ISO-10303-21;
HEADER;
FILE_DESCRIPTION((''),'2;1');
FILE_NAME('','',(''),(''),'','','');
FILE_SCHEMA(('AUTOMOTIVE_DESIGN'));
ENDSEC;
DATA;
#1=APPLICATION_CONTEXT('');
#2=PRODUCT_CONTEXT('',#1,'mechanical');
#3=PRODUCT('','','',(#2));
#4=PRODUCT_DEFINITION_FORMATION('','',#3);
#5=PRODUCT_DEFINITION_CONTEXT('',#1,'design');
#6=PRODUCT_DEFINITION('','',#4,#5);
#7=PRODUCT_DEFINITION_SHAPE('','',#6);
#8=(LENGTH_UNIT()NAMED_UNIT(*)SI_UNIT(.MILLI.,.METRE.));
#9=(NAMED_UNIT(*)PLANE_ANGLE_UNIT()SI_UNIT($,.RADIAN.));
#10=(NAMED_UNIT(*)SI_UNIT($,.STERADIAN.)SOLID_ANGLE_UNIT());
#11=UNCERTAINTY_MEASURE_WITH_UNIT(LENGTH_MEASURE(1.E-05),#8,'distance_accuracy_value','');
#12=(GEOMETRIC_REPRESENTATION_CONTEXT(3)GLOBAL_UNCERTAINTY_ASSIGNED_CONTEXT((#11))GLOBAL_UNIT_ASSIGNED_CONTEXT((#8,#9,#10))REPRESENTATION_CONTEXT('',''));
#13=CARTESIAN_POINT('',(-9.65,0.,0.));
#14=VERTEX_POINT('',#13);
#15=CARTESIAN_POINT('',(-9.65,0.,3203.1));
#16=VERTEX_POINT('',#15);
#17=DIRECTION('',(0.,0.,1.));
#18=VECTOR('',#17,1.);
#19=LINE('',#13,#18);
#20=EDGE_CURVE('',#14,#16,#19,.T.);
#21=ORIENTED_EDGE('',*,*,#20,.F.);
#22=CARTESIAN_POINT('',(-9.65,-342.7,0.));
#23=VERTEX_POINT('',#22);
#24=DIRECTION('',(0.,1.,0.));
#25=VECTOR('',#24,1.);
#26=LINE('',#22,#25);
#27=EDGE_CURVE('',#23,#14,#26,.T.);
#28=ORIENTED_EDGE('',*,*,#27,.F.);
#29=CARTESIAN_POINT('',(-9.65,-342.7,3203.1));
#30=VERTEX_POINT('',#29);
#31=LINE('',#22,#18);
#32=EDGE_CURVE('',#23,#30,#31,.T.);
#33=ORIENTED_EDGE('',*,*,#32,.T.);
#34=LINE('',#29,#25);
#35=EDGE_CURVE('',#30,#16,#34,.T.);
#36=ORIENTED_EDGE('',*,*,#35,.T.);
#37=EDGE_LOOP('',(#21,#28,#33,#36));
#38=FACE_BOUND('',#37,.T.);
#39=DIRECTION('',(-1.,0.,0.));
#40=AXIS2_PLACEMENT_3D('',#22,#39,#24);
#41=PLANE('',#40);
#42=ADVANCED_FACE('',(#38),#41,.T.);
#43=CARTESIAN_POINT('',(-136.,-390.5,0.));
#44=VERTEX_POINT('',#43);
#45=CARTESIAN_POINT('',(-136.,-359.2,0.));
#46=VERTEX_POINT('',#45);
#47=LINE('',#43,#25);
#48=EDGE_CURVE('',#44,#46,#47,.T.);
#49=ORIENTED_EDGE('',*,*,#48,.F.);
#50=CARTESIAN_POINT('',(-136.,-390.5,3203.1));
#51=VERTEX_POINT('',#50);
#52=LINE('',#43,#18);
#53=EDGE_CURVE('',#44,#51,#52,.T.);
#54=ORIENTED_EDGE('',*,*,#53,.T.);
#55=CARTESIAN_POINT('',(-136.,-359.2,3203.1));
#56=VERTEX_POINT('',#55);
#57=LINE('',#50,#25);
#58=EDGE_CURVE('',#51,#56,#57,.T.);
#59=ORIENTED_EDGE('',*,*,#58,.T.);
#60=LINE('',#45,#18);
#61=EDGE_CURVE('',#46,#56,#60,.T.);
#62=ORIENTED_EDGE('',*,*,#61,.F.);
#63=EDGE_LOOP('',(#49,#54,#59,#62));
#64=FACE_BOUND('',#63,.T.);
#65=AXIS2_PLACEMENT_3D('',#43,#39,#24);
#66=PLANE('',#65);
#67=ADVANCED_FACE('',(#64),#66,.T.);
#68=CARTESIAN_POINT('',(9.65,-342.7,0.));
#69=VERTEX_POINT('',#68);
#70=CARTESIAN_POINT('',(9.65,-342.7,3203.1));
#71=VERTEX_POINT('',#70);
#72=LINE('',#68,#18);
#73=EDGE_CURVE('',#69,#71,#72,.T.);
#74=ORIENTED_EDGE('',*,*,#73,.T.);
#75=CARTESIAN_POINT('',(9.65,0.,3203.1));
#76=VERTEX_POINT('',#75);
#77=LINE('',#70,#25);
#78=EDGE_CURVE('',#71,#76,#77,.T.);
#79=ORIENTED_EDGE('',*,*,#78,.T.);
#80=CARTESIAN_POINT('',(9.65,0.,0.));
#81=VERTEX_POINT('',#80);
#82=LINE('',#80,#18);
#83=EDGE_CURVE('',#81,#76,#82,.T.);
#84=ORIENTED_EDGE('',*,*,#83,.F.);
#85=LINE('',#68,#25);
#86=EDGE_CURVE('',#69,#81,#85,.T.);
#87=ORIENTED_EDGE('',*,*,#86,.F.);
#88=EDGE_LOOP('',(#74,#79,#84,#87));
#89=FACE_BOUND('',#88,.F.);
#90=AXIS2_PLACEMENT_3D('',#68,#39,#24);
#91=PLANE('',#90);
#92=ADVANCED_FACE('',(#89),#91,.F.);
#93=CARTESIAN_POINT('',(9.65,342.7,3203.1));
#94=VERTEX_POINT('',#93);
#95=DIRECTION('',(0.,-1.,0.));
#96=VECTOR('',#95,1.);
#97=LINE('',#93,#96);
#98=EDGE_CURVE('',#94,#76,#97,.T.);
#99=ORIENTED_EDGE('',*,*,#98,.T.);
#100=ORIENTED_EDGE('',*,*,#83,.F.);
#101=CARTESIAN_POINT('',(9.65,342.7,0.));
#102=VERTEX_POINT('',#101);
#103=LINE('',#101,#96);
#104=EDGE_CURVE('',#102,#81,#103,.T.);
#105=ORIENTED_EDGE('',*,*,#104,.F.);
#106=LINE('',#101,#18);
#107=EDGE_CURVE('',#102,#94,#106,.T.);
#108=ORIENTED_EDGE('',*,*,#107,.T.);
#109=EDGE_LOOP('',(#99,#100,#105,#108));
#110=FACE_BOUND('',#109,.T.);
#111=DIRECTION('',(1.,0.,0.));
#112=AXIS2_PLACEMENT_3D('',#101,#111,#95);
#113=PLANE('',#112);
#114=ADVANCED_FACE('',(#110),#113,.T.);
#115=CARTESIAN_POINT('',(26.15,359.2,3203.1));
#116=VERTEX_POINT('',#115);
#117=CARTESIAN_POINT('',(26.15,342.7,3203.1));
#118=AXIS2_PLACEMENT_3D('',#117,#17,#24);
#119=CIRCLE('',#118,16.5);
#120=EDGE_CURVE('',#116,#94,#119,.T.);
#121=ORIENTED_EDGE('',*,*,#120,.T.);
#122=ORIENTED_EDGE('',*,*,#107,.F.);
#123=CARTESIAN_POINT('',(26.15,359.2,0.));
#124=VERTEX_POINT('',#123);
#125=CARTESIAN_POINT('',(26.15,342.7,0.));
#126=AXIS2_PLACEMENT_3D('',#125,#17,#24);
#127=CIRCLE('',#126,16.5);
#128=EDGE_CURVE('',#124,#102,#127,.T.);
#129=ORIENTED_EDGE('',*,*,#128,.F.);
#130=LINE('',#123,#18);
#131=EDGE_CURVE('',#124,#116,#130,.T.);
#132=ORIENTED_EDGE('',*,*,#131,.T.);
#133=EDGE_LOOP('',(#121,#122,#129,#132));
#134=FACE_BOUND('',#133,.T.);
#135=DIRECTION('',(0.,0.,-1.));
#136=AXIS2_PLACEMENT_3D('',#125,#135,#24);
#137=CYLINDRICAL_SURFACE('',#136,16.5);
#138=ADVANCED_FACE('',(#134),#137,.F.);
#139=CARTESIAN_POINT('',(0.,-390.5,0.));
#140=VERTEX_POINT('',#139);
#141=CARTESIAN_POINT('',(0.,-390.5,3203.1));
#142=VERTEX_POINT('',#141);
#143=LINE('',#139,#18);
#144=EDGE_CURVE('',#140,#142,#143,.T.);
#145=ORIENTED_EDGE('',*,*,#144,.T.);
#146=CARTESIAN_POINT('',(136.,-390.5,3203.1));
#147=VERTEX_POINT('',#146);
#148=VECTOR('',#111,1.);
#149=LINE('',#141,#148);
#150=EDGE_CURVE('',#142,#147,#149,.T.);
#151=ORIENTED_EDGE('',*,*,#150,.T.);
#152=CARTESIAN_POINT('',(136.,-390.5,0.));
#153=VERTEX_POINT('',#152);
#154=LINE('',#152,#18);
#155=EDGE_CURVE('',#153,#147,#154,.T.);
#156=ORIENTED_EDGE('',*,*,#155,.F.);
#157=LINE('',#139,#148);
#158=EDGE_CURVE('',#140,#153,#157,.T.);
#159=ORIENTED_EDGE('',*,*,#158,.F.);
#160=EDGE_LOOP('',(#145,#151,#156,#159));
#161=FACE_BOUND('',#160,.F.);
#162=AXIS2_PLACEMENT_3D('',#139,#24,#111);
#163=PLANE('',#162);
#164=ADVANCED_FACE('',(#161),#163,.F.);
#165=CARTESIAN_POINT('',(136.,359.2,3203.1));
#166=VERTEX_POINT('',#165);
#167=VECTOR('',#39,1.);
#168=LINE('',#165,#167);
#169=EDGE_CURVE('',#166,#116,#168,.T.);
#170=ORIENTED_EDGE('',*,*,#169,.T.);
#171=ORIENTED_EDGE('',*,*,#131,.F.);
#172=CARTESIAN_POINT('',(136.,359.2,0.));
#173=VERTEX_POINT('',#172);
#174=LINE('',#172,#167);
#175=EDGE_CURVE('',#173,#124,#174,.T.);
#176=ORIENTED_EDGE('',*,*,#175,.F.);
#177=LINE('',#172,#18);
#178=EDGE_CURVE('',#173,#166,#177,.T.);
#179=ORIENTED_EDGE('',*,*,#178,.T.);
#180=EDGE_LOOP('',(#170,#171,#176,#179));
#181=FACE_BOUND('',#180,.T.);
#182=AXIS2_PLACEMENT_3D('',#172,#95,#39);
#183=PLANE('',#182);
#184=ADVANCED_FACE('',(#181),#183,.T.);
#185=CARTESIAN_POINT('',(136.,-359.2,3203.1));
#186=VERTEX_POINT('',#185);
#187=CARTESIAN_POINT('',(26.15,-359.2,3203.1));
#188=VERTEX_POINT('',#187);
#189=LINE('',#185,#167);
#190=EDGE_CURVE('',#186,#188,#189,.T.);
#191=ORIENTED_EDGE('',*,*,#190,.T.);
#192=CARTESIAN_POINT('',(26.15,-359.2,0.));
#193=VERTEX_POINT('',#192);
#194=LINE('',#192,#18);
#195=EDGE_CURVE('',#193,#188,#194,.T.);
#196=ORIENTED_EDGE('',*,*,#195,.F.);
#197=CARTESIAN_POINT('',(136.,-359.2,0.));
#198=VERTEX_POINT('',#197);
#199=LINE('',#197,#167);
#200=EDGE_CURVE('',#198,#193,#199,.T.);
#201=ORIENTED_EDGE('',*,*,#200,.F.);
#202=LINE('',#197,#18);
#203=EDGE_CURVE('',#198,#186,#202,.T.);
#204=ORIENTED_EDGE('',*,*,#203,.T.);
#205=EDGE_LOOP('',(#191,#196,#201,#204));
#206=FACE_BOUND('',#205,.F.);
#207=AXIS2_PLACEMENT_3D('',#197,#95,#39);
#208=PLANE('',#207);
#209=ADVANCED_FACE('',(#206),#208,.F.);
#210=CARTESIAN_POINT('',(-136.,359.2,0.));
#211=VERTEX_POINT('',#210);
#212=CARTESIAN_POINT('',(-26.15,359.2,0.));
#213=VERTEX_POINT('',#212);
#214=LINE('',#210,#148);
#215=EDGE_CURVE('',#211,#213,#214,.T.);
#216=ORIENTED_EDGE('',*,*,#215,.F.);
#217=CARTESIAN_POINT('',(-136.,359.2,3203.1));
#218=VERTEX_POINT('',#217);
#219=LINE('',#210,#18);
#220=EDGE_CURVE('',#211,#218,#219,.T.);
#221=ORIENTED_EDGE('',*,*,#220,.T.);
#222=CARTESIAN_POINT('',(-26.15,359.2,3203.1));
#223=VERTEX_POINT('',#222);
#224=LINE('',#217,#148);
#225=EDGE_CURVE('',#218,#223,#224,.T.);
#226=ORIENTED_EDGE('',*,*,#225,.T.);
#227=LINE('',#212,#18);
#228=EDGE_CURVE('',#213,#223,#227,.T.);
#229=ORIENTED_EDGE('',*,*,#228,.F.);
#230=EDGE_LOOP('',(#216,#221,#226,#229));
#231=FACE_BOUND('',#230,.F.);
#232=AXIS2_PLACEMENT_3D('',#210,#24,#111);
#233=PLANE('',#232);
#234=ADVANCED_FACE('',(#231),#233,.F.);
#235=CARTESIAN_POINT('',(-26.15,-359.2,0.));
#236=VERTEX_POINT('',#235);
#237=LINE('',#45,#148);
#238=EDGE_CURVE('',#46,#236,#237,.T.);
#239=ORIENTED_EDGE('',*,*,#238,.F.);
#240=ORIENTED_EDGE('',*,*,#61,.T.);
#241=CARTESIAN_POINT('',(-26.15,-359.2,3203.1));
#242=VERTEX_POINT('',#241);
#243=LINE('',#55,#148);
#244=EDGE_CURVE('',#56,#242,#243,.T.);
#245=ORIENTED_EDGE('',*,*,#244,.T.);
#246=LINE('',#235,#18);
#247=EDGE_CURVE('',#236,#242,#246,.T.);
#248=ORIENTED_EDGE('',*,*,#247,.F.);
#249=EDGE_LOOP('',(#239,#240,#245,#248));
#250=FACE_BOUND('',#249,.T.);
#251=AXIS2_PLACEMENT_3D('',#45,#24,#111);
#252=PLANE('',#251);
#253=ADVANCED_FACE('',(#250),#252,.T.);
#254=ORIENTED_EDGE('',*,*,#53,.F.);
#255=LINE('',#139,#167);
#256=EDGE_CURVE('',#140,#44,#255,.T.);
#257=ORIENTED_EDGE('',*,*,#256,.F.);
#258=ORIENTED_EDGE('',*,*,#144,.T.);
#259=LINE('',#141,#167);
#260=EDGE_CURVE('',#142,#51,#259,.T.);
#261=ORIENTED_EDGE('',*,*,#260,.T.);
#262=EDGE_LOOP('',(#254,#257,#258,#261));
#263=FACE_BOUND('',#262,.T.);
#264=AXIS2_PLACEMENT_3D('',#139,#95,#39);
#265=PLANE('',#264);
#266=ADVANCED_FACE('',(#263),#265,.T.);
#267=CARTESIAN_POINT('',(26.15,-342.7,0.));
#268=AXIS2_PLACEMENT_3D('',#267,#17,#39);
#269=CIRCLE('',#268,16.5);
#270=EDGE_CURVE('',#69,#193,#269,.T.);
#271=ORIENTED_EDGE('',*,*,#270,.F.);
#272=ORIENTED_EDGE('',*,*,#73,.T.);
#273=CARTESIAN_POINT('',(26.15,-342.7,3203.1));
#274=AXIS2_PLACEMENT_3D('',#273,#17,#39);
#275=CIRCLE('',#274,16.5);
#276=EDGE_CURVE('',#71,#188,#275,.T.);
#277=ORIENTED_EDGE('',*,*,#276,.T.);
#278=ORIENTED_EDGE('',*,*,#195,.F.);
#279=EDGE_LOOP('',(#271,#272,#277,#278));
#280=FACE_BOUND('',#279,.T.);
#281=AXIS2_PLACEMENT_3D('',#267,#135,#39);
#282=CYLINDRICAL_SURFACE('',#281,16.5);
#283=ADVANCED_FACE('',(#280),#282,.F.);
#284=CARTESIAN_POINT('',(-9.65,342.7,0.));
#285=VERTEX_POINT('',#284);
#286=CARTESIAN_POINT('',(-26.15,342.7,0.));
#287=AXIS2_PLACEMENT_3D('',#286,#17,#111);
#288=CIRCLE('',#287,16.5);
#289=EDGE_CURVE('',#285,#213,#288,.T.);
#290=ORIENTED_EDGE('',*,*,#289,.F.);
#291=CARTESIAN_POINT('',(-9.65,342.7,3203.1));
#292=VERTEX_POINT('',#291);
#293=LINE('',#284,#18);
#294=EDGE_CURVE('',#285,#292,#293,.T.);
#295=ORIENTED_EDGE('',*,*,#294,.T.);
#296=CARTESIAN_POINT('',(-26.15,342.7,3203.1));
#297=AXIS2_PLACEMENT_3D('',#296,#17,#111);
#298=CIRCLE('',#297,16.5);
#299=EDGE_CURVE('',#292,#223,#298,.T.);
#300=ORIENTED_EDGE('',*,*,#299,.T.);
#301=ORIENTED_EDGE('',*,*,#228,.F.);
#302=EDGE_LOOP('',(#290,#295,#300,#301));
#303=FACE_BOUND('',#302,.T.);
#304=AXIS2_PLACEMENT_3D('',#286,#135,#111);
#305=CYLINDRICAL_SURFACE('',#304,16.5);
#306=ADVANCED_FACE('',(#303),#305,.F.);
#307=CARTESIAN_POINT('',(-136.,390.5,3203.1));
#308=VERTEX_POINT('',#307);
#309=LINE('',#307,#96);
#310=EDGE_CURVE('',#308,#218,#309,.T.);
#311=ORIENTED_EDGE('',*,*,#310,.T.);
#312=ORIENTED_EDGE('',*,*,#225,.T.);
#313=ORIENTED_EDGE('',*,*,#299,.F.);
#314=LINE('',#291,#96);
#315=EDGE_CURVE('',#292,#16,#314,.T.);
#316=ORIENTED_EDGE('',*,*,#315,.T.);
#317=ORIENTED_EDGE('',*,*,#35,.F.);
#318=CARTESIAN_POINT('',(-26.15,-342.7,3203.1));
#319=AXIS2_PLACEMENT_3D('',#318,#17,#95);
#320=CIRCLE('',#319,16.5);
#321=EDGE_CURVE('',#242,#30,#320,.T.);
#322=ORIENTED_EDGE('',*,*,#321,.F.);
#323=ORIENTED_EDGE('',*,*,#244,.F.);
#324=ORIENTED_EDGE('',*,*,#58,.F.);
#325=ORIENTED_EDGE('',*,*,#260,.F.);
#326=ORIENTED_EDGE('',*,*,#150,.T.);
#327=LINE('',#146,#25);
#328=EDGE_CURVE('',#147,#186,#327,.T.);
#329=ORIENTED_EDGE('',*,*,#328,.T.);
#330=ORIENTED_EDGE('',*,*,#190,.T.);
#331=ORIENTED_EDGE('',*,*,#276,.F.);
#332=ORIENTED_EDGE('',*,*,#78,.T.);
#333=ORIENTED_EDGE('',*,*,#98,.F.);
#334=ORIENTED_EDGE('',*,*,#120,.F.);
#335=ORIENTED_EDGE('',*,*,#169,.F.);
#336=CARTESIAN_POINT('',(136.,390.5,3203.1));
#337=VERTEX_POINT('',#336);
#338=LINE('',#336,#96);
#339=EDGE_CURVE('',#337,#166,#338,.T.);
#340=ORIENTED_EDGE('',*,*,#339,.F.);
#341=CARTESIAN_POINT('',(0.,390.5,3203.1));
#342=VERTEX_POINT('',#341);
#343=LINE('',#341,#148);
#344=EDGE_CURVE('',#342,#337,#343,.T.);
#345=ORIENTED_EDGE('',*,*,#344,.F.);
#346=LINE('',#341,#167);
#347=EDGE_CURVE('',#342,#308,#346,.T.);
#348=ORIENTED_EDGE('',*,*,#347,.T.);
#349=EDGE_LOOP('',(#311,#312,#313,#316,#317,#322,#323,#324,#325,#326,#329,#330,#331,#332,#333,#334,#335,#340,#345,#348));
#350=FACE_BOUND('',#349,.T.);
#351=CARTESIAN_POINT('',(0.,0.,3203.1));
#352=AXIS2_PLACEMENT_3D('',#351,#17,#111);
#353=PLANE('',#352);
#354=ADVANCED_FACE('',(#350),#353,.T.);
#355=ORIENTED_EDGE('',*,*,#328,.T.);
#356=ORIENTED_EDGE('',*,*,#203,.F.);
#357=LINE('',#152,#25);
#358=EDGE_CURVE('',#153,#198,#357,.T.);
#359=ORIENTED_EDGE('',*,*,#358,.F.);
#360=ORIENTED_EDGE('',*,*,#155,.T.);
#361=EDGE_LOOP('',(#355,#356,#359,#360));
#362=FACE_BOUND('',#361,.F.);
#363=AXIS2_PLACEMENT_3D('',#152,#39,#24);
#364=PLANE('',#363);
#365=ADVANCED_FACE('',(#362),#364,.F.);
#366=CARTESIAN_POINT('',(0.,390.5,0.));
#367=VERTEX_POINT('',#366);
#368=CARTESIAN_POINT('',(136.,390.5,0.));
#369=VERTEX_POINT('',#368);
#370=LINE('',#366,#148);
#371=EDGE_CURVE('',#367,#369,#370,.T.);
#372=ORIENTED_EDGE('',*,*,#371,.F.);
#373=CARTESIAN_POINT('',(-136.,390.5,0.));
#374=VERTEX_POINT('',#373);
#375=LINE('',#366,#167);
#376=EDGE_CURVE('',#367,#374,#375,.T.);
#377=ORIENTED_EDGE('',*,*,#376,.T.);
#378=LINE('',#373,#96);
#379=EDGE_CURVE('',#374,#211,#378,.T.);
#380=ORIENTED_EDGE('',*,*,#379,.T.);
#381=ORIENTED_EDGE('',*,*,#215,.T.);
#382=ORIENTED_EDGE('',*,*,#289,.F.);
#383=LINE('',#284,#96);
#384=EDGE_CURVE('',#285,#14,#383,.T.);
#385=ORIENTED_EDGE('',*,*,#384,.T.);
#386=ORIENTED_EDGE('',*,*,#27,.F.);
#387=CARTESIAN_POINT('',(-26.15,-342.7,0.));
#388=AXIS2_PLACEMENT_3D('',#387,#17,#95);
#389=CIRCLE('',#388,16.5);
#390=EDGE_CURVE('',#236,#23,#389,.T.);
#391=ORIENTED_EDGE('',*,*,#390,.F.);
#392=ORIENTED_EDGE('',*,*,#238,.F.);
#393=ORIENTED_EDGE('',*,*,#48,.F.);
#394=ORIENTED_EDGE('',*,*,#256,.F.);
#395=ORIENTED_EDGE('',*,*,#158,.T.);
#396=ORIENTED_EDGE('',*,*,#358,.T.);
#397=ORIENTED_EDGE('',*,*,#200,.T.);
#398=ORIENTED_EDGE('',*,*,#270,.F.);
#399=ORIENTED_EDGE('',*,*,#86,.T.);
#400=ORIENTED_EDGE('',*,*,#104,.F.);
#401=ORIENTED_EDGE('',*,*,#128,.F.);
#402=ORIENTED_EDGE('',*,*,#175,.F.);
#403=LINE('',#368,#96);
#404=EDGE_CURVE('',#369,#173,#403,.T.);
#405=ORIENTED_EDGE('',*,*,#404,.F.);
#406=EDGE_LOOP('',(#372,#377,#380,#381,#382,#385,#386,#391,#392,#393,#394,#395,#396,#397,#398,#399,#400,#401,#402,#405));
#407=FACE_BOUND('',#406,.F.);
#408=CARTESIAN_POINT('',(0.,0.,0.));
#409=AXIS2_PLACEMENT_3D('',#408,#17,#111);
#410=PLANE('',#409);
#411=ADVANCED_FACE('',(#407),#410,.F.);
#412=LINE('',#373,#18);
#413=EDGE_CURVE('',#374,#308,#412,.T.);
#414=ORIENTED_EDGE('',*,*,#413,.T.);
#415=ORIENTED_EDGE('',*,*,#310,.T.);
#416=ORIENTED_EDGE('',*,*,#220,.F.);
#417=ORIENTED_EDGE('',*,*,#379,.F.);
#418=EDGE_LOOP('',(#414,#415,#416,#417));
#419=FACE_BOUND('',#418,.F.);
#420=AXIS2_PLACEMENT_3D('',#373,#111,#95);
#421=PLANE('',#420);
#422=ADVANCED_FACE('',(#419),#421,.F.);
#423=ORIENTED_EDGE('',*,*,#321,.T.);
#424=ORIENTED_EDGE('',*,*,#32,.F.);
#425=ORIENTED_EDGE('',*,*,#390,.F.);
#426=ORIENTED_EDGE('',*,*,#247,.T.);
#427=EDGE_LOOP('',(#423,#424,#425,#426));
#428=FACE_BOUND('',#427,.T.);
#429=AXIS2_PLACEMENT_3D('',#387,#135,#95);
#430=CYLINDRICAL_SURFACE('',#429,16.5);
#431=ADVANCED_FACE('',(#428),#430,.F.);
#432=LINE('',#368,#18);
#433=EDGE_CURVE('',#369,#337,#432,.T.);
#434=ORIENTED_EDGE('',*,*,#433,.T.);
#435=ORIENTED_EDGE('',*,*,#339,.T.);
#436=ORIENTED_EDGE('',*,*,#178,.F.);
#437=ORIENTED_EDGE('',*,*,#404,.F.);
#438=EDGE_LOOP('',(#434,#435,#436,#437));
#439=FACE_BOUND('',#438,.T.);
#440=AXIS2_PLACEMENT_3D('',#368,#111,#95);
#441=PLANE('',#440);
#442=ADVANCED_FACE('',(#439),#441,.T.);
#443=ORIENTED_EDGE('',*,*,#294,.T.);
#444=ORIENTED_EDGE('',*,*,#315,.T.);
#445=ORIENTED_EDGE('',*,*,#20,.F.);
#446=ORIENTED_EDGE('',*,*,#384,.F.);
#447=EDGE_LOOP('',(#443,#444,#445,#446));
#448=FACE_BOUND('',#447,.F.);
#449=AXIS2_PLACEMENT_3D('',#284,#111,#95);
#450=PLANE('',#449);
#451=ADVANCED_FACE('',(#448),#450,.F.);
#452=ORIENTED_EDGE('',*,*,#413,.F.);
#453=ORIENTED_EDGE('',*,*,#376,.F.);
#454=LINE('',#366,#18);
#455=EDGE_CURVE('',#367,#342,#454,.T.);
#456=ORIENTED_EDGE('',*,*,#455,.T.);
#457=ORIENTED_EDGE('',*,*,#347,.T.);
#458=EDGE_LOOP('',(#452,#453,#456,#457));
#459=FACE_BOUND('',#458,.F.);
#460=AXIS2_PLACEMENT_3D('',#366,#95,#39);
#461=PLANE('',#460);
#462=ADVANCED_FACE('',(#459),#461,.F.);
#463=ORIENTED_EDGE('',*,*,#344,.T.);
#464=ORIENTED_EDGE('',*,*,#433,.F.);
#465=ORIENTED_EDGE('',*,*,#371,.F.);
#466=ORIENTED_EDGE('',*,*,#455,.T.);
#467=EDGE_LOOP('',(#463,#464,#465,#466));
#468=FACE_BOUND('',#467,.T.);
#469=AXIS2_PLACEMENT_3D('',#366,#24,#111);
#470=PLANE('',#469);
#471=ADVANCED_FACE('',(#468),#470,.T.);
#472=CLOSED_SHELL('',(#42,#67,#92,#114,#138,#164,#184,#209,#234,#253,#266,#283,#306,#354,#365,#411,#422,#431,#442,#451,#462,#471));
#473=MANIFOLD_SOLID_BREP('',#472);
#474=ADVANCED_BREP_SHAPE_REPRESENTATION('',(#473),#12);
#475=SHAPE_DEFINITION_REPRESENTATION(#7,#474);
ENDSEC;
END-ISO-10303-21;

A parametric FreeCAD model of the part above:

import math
import FreeCAD as App
import Part
import Sketcher

doc = App.newDocument("Part")
body = doc.addObject("PartDesign::Body", "Body")

sketch1 = doc.addObject("Sketcher::SketchObject", "Sketch")
body.addObject(sketch1)
sketch1.AttachmentSupport = (doc.XY_Plane, [""])
sketch1.MapMode = "FlatFace"
sketch1.addGeometry([
    Part.LineSegment(App.Vector(-136, -359, 0), App.Vector(-136, -390, 0)),
    Part.LineSegment(App.Vector(-136, -390, 0), App.Vector(136, -390, 0)),
    Part.LineSegment(App.Vector(136, -390, 0), App.Vector(136, -359, 0)),
    Part.LineSegment(App.Vector(136, -359, 0), App.Vector(26, -359, 0)),
    Part.ArcOfCircle(Part.Circle(App.Vector(26, -343, 0), App.Vector(0, 0, 1), 16), math.radians(180), math.radians(270)),
    Part.LineSegment(App.Vector(10, -343, 0), App.Vector(10, 343, 0)),
    Part.ArcOfCircle(Part.Circle(App.Vector(26, 343, 0), App.Vector(0, 0, 1), 16), math.radians(90), math.radians(180)),
    Part.LineSegment(App.Vector(26, 359, 0), App.Vector(136, 359, 0)),
    Part.LineSegment(App.Vector(136, 359, 0), App.Vector(136, 390, 0)),
    Part.LineSegment(App.Vector(136, 390, 0), App.Vector(-136, 390, 0)),
    Part.LineSegment(App.Vector(-136, 390, 0), App.Vector(-136, 359, 0)),
    Part.LineSegment(App.Vector(-136, 359, 0), App.Vector(-26, 359, 0)),
    Part.ArcOfCircle(Part.Circle(App.Vector(-26, 343, 0), App.Vector(0, 0, 1), 16), math.radians(0), math.radians(90)),
    Part.LineSegment(App.Vector(-10, 343, 0), App.Vector(-10, -343, 0)),
    Part.ArcOfCircle(Part.Circle(App.Vector(-26, -343, 0), App.Vector(0, 0, 1), 16), math.radians(-90), math.radians(0)),
    Part.LineSegment(App.Vector(-26, -359, 0), App.Vector(-136, -359, 0)),
], False)
sketch1.addConstraint([
    Sketcher.Constraint("Coincident", 0, 2, 1, 1),
    Sketcher.Constraint("Coincident", 1, 2, 2, 1),
    Sketcher.Constraint("Coincident", 2, 2, 3, 1),
    Sketcher.Constraint("Tangent", 3, 2, 4, 2),
    Sketcher.Constraint("Tangent", 4, 1, 5, 1),
    Sketcher.Constraint("Tangent", 5, 2, 6, 2),
    Sketcher.Constraint("Tangent", 6, 1, 7, 1),
    Sketcher.Constraint("Coincident", 7, 2, 8, 1),
    Sketcher.Constraint("Coincident", 8, 2, 9, 1),
    Sketcher.Constraint("Coincident", 9, 2, 10, 1),
    Sketcher.Constraint("Coincident", 10, 2, 11, 1),
    Sketcher.Constraint("Tangent", 11, 2, 12, 2),
    Sketcher.Constraint("Tangent", 12, 1, 13, 1),
    Sketcher.Constraint("Tangent", 13, 2, 14, 2),
    Sketcher.Constraint("Tangent", 14, 1, 15, 1),
    Sketcher.Constraint("Coincident", 15, 2, 0, 1),
    Sketcher.Constraint("Vertical", 0),
    Sketcher.Constraint("Horizontal", 1),
    Sketcher.Constraint("Vertical", 2),
    Sketcher.Constraint("Horizontal", 3),
    Sketcher.Constraint("Vertical", 5),
    Sketcher.Constraint("Horizontal", 7),
    Sketcher.Constraint("Vertical", 8),
    Sketcher.Constraint("Horizontal", 9),
    Sketcher.Constraint("Vertical", 10),
    Sketcher.Constraint("Horizontal", 11),
    Sketcher.Constraint("Vertical", 13),
    Sketcher.Constraint("Horizontal", 15),
    Sketcher.Constraint("Equal", 4, 6),
    Sketcher.Constraint("Equal", 6, 12),
    Sketcher.Constraint("Equal", 12, 14),
    Sketcher.Constraint("Symmetric", 4, 3, 12, 3, -1, 1),
    Sketcher.Constraint("Symmetric", 0, 2, 8, 2, -1, 1),
    Sketcher.Constraint("Symmetric", 7, 2, 10, 2, -2),
    Sketcher.Constraint("Symmetric", 2, 2, 15, 2, -2),
    Sketcher.Constraint("Radius", 4, 16.5),
    Sketcher.Constraint("DistanceY", 0, 2, 0, 1, 31.3),
    Sketcher.Constraint("DistanceX", 0, 2, -1, 1, 136.0),
    Sketcher.Constraint("DistanceY", 0, 2, -1, 1, 390.5),
    Sketcher.Constraint("DistanceX", -1, 1, 4, 1, 9.65),
])
pad1 = doc.addObject("PartDesign::Pad", "Pad")
body.addObject(pad1)
pad1.Profile = sketch1
pad1.Length = 3203.1

doc.recompute()
